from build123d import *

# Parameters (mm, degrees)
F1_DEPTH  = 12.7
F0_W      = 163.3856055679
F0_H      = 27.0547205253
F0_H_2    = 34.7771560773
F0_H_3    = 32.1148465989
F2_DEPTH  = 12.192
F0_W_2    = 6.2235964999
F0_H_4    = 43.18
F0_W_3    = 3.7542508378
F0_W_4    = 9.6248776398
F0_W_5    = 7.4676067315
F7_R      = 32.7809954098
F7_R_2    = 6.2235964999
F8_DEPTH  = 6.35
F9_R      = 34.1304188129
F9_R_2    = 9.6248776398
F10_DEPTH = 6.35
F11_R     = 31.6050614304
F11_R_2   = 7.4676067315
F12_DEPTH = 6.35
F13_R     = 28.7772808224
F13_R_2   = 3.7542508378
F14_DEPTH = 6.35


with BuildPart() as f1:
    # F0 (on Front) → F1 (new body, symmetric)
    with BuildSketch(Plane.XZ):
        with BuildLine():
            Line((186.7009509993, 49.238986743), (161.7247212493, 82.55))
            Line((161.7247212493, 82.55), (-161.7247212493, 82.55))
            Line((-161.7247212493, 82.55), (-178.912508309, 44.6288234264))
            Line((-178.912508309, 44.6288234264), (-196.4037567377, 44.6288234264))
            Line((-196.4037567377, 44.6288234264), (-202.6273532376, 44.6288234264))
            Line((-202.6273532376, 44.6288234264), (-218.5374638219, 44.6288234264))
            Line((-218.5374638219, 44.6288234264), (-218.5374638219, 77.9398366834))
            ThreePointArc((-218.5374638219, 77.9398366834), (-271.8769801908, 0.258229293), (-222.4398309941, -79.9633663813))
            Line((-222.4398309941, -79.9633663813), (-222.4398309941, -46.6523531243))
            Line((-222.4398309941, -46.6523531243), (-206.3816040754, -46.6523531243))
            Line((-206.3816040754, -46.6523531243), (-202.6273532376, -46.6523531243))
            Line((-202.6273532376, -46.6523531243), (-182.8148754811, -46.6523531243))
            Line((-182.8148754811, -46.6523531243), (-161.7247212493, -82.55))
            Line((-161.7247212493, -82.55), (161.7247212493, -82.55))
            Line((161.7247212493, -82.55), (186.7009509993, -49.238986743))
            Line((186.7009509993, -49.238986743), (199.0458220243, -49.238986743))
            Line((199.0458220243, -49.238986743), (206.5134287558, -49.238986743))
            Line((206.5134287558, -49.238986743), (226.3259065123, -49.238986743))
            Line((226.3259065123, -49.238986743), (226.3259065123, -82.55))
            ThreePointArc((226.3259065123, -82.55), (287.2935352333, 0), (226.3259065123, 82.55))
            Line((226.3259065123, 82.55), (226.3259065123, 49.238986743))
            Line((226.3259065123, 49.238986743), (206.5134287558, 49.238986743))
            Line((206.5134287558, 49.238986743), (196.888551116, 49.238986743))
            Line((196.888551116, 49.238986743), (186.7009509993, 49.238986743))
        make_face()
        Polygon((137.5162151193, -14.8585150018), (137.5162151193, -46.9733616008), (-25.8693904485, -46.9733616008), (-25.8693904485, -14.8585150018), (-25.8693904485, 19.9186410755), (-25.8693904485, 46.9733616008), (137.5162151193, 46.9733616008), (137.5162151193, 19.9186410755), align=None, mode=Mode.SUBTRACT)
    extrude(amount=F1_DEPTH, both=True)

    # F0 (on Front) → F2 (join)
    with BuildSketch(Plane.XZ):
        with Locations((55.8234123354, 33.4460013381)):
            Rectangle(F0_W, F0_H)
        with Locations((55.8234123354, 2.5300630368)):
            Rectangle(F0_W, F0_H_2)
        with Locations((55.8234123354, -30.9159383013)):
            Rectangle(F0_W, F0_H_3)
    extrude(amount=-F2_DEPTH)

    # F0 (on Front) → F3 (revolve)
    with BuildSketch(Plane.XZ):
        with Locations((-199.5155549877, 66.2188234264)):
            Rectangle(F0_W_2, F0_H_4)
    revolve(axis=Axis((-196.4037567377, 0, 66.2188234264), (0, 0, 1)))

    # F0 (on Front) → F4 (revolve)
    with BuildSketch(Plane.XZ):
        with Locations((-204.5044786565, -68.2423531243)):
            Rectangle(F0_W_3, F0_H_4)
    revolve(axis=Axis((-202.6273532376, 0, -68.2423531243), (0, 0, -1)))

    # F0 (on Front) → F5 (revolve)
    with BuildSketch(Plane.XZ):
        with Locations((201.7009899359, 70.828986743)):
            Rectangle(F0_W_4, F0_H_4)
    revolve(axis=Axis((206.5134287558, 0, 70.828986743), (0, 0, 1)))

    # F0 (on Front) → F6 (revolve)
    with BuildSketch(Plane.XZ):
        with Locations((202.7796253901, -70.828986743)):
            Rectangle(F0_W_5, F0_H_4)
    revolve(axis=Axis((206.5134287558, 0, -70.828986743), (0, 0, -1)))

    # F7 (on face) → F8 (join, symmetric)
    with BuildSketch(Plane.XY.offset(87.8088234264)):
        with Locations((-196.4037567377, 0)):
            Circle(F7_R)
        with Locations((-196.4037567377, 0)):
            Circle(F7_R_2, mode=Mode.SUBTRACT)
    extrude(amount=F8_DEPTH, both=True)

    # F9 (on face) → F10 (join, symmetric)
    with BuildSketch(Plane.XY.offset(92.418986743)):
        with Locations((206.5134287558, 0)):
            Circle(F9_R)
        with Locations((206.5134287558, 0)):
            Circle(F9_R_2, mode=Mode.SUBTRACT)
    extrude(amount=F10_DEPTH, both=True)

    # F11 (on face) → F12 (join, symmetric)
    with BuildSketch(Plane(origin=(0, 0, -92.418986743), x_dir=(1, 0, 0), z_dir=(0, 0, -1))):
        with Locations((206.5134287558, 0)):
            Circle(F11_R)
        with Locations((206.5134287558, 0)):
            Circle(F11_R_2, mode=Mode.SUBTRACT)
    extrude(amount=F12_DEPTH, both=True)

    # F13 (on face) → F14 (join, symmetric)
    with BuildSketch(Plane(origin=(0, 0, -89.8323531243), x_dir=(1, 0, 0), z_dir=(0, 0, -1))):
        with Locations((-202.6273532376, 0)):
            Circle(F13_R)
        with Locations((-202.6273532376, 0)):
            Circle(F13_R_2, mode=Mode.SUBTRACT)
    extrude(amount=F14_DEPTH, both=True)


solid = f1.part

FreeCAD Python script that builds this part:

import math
import FreeCAD as App
import Part
import Sketcher
Q = App.Units.Quantity

doc = App.newDocument("Part")
body = doc.addObject("PartDesign::Body", "Body")

# Sketch on XZ plane
sketch1 = body.newObject("Sketcher::SketchObject", "Sketch")
sketch1.AttachmentSupport = (doc.getObject("XZ_Plane"), [""])
sketch1.MapMode = "FlatFace"
sketch1.addGeometry(Part.LineSegment(App.Vector(187, 49, 0), App.Vector(162, 83, 0)), False)
sketch1.addGeometry(Part.LineSegment(App.Vector(162, 83, 0), App.Vector(-162, 83, 0)), False)
sketch1.addGeometry(Part.LineSegment(App.Vector(-162, 83, 0), App.Vector(-179, 45, 0)), False)
sketch1.addGeometry(Part.LineSegment(App.Vector(-179, 45, 0), App.Vector(-219, 45, 0)), False)
sketch1.addGeometry(Part.LineSegment(App.Vector(-219, 45, 0), App.Vector(-219, 78, 0)), False)
sketch1.addGeometry(Part.ArcOfCircle(Part.Circle(App.Vector(-186, -2, 0), App.Vector(0, 0, 1), 86), math.radians(112), math.radians(245)), False)
sketch1.addGeometry(Part.LineSegment(App.Vector(-222, -80, 0), App.Vector(-222, -47, 0)), False)
sketch1.addGeometry(Part.LineSegment(App.Vector(-222, -47, 0), App.Vector(-183, -47, 0)), False)
sketch1.addGeometry(Part.LineSegment(App.Vector(-183, -47, 0), App.Vector(-162, -83, 0)), False)
sketch1.addGeometry(Part.LineSegment(App.Vector(-162, -83, 0), App.Vector(162, -83, 0)), False)
sketch1.addGeometry(Part.LineSegment(App.Vector(162, -83, 0), App.Vector(187, -49, 0)), False)
sketch1.addGeometry(Part.LineSegment(App.Vector(187, -49, 0), App.Vector(226, -49, 0)), False)
sketch1.addGeometry(Part.LineSegment(App.Vector(226, -49, 0), App.Vector(226, -83, 0)), False)
sketch1.addGeometry(Part.ArcOfCircle(Part.Circle(App.Vector(201, 0, 0), App.Vector(0, 0, 1), 86), math.radians(-73), math.radians(73)), False)
sketch1.addGeometry(Part.LineSegment(App.Vector(226, 83, 0), App.Vector(226, 49, 0)), False)
sketch1.addGeometry(Part.LineSegment(App.Vector(226, 49, 0), App.Vector(187, 49, 0)), False)
sketch1.addGeometry(Part.LineSegment(App.Vector(138, 47, 0), App.Vector(138, -47, 0)), False)
sketch1.addGeometry(Part.LineSegment(App.Vector(138, -47, 0), App.Vector(-26, -47, 0)), False)
sketch1.addGeometry(Part.LineSegment(App.Vector(-26, -47, 0), App.Vector(-26, 47, 0)), False)
sketch1.addGeometry(Part.LineSegment(App.Vector(-26, 47, 0), App.Vector(138, 47, 0)), False)
sketch1.addConstraint(Sketcher.Constraint("Coincident", 0, 2, 1, 1))
sketch1.addConstraint(Sketcher.Constraint("Coincident", 1, 2, 2, 1))
sketch1.addConstraint(Sketcher.Constraint("Coincident", 2, 2, 3, 1))
sketch1.addConstraint(Sketcher.Constraint("Coincident", 3, 2, 4, 1))
sketch1.addConstraint(Sketcher.Constraint("Coincident", 4, 2, 5, 1))
sketch1.addConstraint(Sketcher.Constraint("Coincident", 5, 2, 6, 1))
sketch1.addConstraint(Sketcher.Constraint("Coincident", 6, 2, 7, 1))
sketch1.addConstraint(Sketcher.Constraint("Coincident", 7, 2, 8, 1))
sketch1.addConstraint(Sketcher.Constraint("Coincident", 8, 2, 9, 1))
sketch1.addConstraint(Sketcher.Constraint("Coincident", 9, 2, 10, 1))
sketch1.addConstraint(Sketcher.Constraint("Coincident", 10, 2, 11, 1))
sketch1.addConstraint(Sketcher.Constraint("Coincident", 11, 2, 12, 1))
sketch1.addConstraint(Sketcher.Constraint("Coincident", 12, 2, 13, 1))
sketch1.addConstraint(Sketcher.Constraint("Coincident", 13, 2, 14, 1))
sketch1.addConstraint(Sketcher.Constraint("Coincident", 14, 2, 15, 1))
sketch1.addConstraint(Sketcher.Constraint("Coincident", 15, 2, 0, 1))
sketch1.addConstraint(Sketcher.Constraint("Coincident", 16, 2, 17, 1))
sketch1.addConstraint(Sketcher.Constraint("Coincident", 17, 2, 18, 1))
sketch1.addConstraint(Sketcher.Constraint("Coincident", 18, 2, 19, 1))
sketch1.addConstraint(Sketcher.Constraint("Coincident", 19, 2, 16, 1))
sketch1.addConstraint(Sketcher.Constraint("Horizontal", 1))
sketch1.addConstraint(Sketcher.Constraint("Horizontal", 3))
sketch1.addConstraint(Sketcher.Constraint("Vertical", 4))
sketch1.addConstraint(Sketcher.Constraint("Vertical", 6))
sketch1.addConstraint(Sketcher.Constraint("Horizontal", 7))
sketch1.addConstraint(Sketcher.Constraint("Horizontal", 9))
sketch1.addConstraint(Sketcher.Constraint("Horizontal", 11))
sketch1.addConstraint(Sketcher.Constraint("Vertical", 12))
sketch1.addConstraint(Sketcher.Constraint("Vertical", 14))
sketch1.addConstraint(Sketcher.Constraint("Horizontal", 15))
sketch1.addConstraint(Sketcher.Constraint("Vertical", 16))
sketch1.addConstraint(Sketcher.Constraint("Horizontal", 17))
sketch1.addConstraint(Sketcher.Constraint("Vertical", 18))
sketch1.addConstraint(Sketcher.Constraint("Horizontal", 19))
sketch1.addConstraint(Sketcher.Constraint("Equal", 5, 13))
sketch1.addConstraint(Sketcher.Constraint("Symmetric", 0, 2, 8, 2, -1, 1))
sketch1.addConstraint(Sketcher.Constraint("Symmetric", 12, 2, 13, 2, -1))
sketch1.addConstraint(Sketcher.Constraint("Symmetric", 10, 2, 15, 2, -1))
sketch1.addConstraint(Sketcher.Constraint("Horizontal", 9, 2, 12, 2))
sketch1.addConstraint(Sketcher.Constraint("Vertical", 1, 2, 8, 2))
sketch1.addConstraint(Sketcher.Constraint("Vertical", 0, 2, 9, 2))
sketch1.addConstraint(Sketcher.Constraint("Equal", 3, 7))
sketch1.addConstraint(Sketcher.Constraint("Equal", 7, 11))
sketch1.addConstraint(Sketcher.Constraint("Equal", 4, 6))
sketch1.addConstraint(Sketcher.Constraint("Equal", 6, 12))
sketch1.addConstraint(Sketcher.Constraint("Equal", 0, 2))
sketch1.addConstraint(Sketcher.Constraint("Equal", 2, 8))
sketch1.addConstraint(Sketcher.Constraint("DistanceY", 9, 2, 0, 2, Q("6.5 in")))
sketch1.addConstraint(Sketcher.Constraint("Radius", 5, 86.37005))
sketch1.addConstraint(Sketcher.Constraint("DistanceY", 5, 3, 18, 2, 48.849001))
sketch1.addConstraint(Sketcher.Constraint("Distance", 0, 41.634549))
sketch1.addConstraint(Sketcher.Constraint("DistanceX", 1, 2, 1, 1, 323.449442))
sketch1.addConstraint(Sketcher.Constraint("DistanceX", 3, 2, 3, 1, 39.624956))
sketch1.addConstraint(Sketcher.Constraint("DistanceX", 17, 2, 17, 1, 163.385606))
sketch1.addConstraint(Sketcher.Constraint("DistanceY", 4, 1, 4, 2, 33.311013))
sketch1.addConstraint(Sketcher.Constraint("DistanceY", 16, 2, 16, 1, 93.946723))
sketch1.addConstraint(Sketcher.Constraint("DistanceY", 5, 3, -1, 1, 1.87564))
sketch1.addConstraint(Sketcher.Constraint("DistanceX", 2, 2, -1, 1, 178.912508))
sketch1.addConstraint(Sketcher.Constraint("DistanceX", 17, 2, -1, 1, 25.86939))
pad1 = body.newObject("PartDesign::Pad", "Pad")
pad1.Profile = sketch1
pad1.Length = Q("1 in")
pad1.Midplane = True

# Sketch on XZ plane
sketch2 = body.newObject("Sketcher::SketchObject", "Sketch001")
sketch2.AttachmentSupport = (doc.getObject("XZ_Plane"), [""])
sketch2.MapMode = "FlatFace"
sketch2.addGeometry(Part.LineSegment(App.Vector(-26, 47, 0), App.Vector(-26, -47, 0)), False)
sketch2.addGeometry(Part.LineSegment(App.Vector(-26, -47, 0), App.Vector(138, -47, 0)), False)
sketch2.addGeometry(Part.LineSegment(App.Vector(138, -47, 0), App.Vector(138, 47, 0)), False)
sketch2.addGeometry(Part.LineSegment(App.Vector(138, 47, 0), App.Vector(-26, 47, 0)), False)
sketch2.addConstraint(Sketcher.Constraint("Coincident", 0, 2, 1, 1))
sketch2.addConstraint(Sketcher.Constraint("Coincident", 1, 2, 2, 1))
sketch2.addConstraint(Sketcher.Constraint("Coincident", 2, 2, 3, 1))
sketch2.addConstraint(Sketcher.Constraint("Coincident", 3, 2, 0, 1))
sketch2.addConstraint(Sketcher.Constraint("Vertical", 0))
sketch2.addConstraint(Sketcher.Constraint("Horizontal", 1))
sketch2.addConstraint(Sketcher.Constraint("Vertical", 2))
sketch2.addConstraint(Sketcher.Constraint("Horizontal", 3))
sketch2.addConstraint(Sketcher.Constraint("DistanceX", 1, 1, 1, 2, 163.385606))
sketch2.addConstraint(Sketcher.Constraint("DistanceY", 0, 2, 0, 1, 93.946723))
sketch2.addConstraint(Sketcher.Constraint("DistanceX", 0, 2, -1, 1, 25.86939))
sketch2.addConstraint(Sketcher.Constraint("DistanceY", 0, 2, -1, 1, 46.973362))
pad2 = body.newObject("PartDesign::Pad", "Pad001")
pad2.Profile = sketch2
pad2.Length = Q("0.48 in")
pad2.Reversed = True

# Sketch on XZ plane
sketch3 = body.newObject("Sketcher::SketchObject", "Sketch002")
sketch3.AttachmentSupport = (doc.getObject("XZ_Plane"), [""])
sketch3.MapMode = "FlatFace"
sketch3.addGeometry(Part.LineSegment(App.Vector(-203, 88, 0), App.Vector(-203, 45, 0)), False)
sketch3.addGeometry(Part.LineSegment(App.Vector(-203, 45, 0), App.Vector(-196, 45, 0)), False)
sketch3.addGeometry(Part.LineSegment(App.Vector(-196, 45, 0), App.Vector(-196, 88, 0)), False)
sketch3.addGeometry(Part.LineSegment(App.Vector(-196, 88, 0), App.Vector(-203, 88, 0)), False)
sketch3.addGeometry(Part.LineSegment(App.Vector(-196, 45, 0), App.Vector(-196, 88, 0)), True)  # axis
sketch3.addConstraint(Sketcher.Constraint("Coincident", 0, 2, 1, 1))
sketch3.addConstraint(Sketcher.Constraint("Coincident", 1, 2, 2, 1))
sketch3.addConstraint(Sketcher.Constraint("Coincident", 2, 2, 3, 1))
sketch3.addConstraint(Sketcher.Constraint("Coincident", 3, 2, 0, 1))
sketch3.addConstraint(Sketcher.Constraint("Vertical", 0))
sketch3.addConstraint(Sketcher.Constraint("Horizontal", 1))
sketch3.addConstraint(Sketcher.Constraint("Vertical", 2))
sketch3.addConstraint(Sketcher.Constraint("Horizontal", 3))
sketch3.addConstraint(Sketcher.Constraint("Vertical", 4))
sketch3.addConstraint(Sketcher.Constraint("Coincident", 4, 1, 1, 2))
sketch3.addConstraint(Sketcher.Constraint("Horizontal", 3, 2, 4, 2))
sketch3.addConstraint(Sketcher.Constraint("DistanceY", 0, 2, 0, 1, Q("1.7 in")))
sketch3.addConstraint(Sketcher.Constraint("DistanceX", 1, 1, 1, 2, 6.223597))
sketch3.addConstraint(Sketcher.Constraint("DistanceX", 0, 2, -1, 1, 202.627353))
sketch3.addConstraint(Sketcher.Constraint("DistanceY", -1, 1, 0, 2, 44.628823))
revolution = body.newObject("PartDesign::Revolution", "Revolution")
revolution.Profile = sketch3
revolution.ReferenceAxis = (sketch3, ["Axis0"])
revolution.Angle = 360

# Sketch on XZ plane
sketch4 = body.newObject("Sketcher::SketchObject", "Sketch003")
sketch4.AttachmentSupport = (doc.getObject("XZ_Plane"), [""])
sketch4.MapMode = "FlatFace"
sketch4.addGeometry(Part.LineSegment(App.Vector(-206.4, -46.7, 0), App.Vector(-206.4, -89.8, 0)), False)
sketch4.addGeometry(Part.LineSegment(App.Vector(-206.4, -89.8, 0), App.Vector(-202.6, -89.8, 0)), False)
sketch4.addGeometry(Part.LineSegment(App.Vector(-202.6, -89.8, 0), App.Vector(-202.6, -46.7, 0)), False)
sketch4.addGeometry(Part.LineSegment(App.Vector(-202.6, -46.7, 0), App.Vector(-206.4, -46.7, 0)), False)
sketch4.addGeometry(Part.LineSegment(App.Vector(-202.6, -46.7, 0), App.Vector(-202.6, -89.8, 0)), True)  # axis
sketch4.addConstraint(Sketcher.Constraint("Coincident", 0, 2, 1, 1))
sketch4.addConstraint(Sketcher.Constraint("Coincident", 1, 2, 2, 1))
sketch4.addConstraint(Sketcher.Constraint("Coincident", 2, 2, 3, 1))
sketch4.addConstraint(Sketcher.Constraint("Coincident", 3, 2, 0, 1))
sketch4.addConstraint(Sketcher.Constraint("Vertical", 0))
sketch4.addConstraint(Sketcher.Constraint("Horizontal", 1))
sketch4.addConstraint(Sketcher.Constraint("Vertical", 2))
sketch4.addConstraint(Sketcher.Constraint("Horizontal", 3))
sketch4.addConstraint(Sketcher.Constraint("Vertical", 4))
sketch4.addConstraint(Sketcher.Constraint("Coincident", 4, 1, 2, 2))
sketch4.addConstraint(Sketcher.Constraint("Horizontal", 0, 2, 4, 2))
sketch4.addConstraint(Sketcher.Constraint("DistanceY", 0, 2, 0, 1, Q("1.7 in")))
sketch4.addConstraint(Sketcher.Constraint("DistanceX", 1, 1, 1, 2, 3.754251))
sketch4.addConstraint(Sketcher.Constraint("DistanceX", 0, 2, -1, 1, 206.381604))
sketch4.addConstraint(Sketcher.Constraint("DistanceY", 0, 2, -1, 1, 89.832353))
revolution2 = body.newObject("PartDesign::Revolution", "Revolution001")
revolution2.Profile = sketch4
revolution2.ReferenceAxis = (sketch4, ["Axis0"])
revolution2.Angle = 360

# Sketch on XZ plane
sketch5 = body.newObject("Sketcher::SketchObject", "Sketch004")
sketch5.AttachmentSupport = (doc.getObject("XZ_Plane"), [""])
sketch5.MapMode = "FlatFace"
sketch5.addGeometry(Part.LineSegment(App.Vector(197, 92, 0), App.Vector(197, 49, 0)), False)
sketch5.addGeometry(Part.LineSegment(App.Vector(197, 49, 0), App.Vector(207, 49, 0)), False)
sketch5.addGeometry(Part.LineSegment(App.Vector(207, 49, 0), App.Vector(207, 92, 0)), False)
sketch5.addGeometry(Part.LineSegment(App.Vector(207, 92, 0), App.Vector(197, 92, 0)), False)
sketch5.addGeometry(Part.LineSegment(App.Vector(207, 49, 0), App.Vector(207, 92, 0)), True)  # axis
sketch5.addConstraint(Sketcher.Constraint("Coincident", 0, 2, 1, 1))
sketch5.addConstraint(Sketcher.Constraint("Coincident", 1, 2, 2, 1))
sketch5.addConstraint(Sketcher.Constraint("Coincident", 2, 2, 3, 1))
sketch5.addConstraint(Sketcher.Constraint("Coincident", 3, 2, 0, 1))
sketch5.addConstraint(Sketcher.Constraint("Vertical", 0))
sketch5.addConstraint(Sketcher.Constraint("Horizontal", 1))
sketch5.addConstraint(Sketcher.Constraint("Vertical", 2))
sketch5.addConstraint(Sketcher.Constraint("Horizontal", 3))
sketch5.addConstraint(Sketcher.Constraint("Vertical", 4))
sketch5.addConstraint(Sketcher.Constraint("Coincident", 4, 1, 1, 2))
sketch5.addConstraint(Sketcher.Constraint("Horizontal", 3, 2, 4, 2))
sketch5.addConstraint(Sketcher.Constraint("DistanceY", 0, 2, 0, 1, Q("1.7 in")))
sketch5.addConstraint(Sketcher.Constraint("DistanceX", 1, 1, 1, 2, 9.624878))
sketch5.addConstraint(Sketcher.Constraint("DistanceX", -1, 1, 0, 2, 196.888551))
sketch5.addConstraint(Sketcher.Constraint("DistanceY", -1, 1, 0, 2, 49.238987))
revolution3 = body.newObject("PartDesign::Revolution", "Revolution002")
revolution3.Profile = sketch5
revolution3.ReferenceAxis = (sketch5, ["Axis0"])
revolution3.Angle = 360

# Sketch on XZ plane
sketch6 = body.newObject("Sketcher::SketchObject", "Sketch005")
sketch6.AttachmentSupport = (doc.getObject("XZ_Plane"), [""])
sketch6.MapMode = "FlatFace"
sketch6.addGeometry(Part.LineSegment(App.Vector(199, -49, 0), App.Vector(199, -92, 0)), False)
sketch6.addGeometry(Part.LineSegment(App.Vector(199, -92, 0), App.Vector(207, -92, 0)), False)
sketch6.addGeometry(Part.LineSegment(App.Vector(207, -92, 0), App.Vector(207, -49, 0)), False)
sketch6.addGeometry(Part.LineSegment(App.Vector(207, -49, 0), App.Vector(199, -49, 0)), False)
sketch6.addGeometry(Part.LineSegment(App.Vector(207, -49, 0), App.Vector(207, -92, 0)), True)  # axis
sketch6.addConstraint(Sketcher.Constraint("Coincident", 0, 2, 1, 1))
sketch6.addConstraint(Sketcher.Constraint("Coincident", 1, 2, 2, 1))
sketch6.addConstraint(Sketcher.Constraint("Coincident", 2, 2, 3, 1))
sketch6.addConstraint(Sketcher.Constraint("Coincident", 3, 2, 0, 1))
sketch6.addConstraint(Sketcher.Constraint("Vertical", 0))
sketch6.addConstraint(Sketcher.Constraint("Horizontal", 1))
sketch6.addConstraint(Sketcher.Constraint("Vertical", 2))
sketch6.addConstraint(Sketcher.Constraint("Horizontal", 3))
sketch6.addConstraint(Sketcher.Constraint("Vertical", 4))
sketch6.addConstraint(Sketcher.Constraint("Coincident", 4, 1, 2, 2))
sketch6.addConstraint(Sketcher.Constraint("Horizontal", 0, 2, 4, 2))
sketch6.addConstraint(Sketcher.Constraint("DistanceY", 0, 2, 0, 1, Q("1.7 in")))
sketch6.addConstraint(Sketcher.Constraint("DistanceX", 1, 1, 1, 2, 7.467607))
sketch6.addConstraint(Sketcher.Constraint("DistanceX", -1, 1, 1, 2, 206.513429))
sketch6.addConstraint(Sketcher.Constraint("DistanceY", 0, 2, -1, 1, 92.418987))
revolution4 = body.newObject("PartDesign::Revolution", "Revolution003")
revolution4.Profile = sketch6
revolution4.ReferenceAxis = (sketch6, ["Axis0"])
revolution4.Angle = 360

# Sketch on XY plane
sketch7 = body.newObject("Sketcher::SketchObject", "Sketch006")
sketch7.AttachmentSupport = (doc.getObject("XY_Plane"), [""])
sketch7.MapMode = "FlatFace"
sketch7.AttachmentOffset = App.Placement(App.Vector(0, 0, 87.808823), App.Rotation())
sketch7.addGeometry(Part.Circle(App.Vector(-196, 0, 0), App.Vector(0, 0, 1), 33), False)
sketch7.addGeometry(Part.Circle(App.Vector(-196, 0, 0), App.Vector(0, 0, 1), 6), False)
sketch7.addConstraint(Sketcher.Constraint("Coincident", 1, 3, 0, 3))
sketch7.addConstraint(Sketcher.Constraint("PointOnObject", 0, 3, -1))
sketch7.addConstraint(Sketcher.Constraint("Diameter", 0, 65.561991))
sketch7.addConstraint(Sketcher.Constraint("Diameter", 1, 12.447193))
sketch7.addConstraint(Sketcher.Constraint("DistanceX", 0, 3, -1, 1, 196.403757))
pad3 = body.newObject("PartDesign::Pad", "Pad002")
pad3.Profile = sketch7
pad3.Length = Q("0.5 in")
pad3.Midplane = True

# Sketch on XY plane
sketch8 = body.newObject("Sketcher::SketchObject", "Sketch007")
sketch8.AttachmentSupport = (doc.getObject("XY_Plane"), [""])
sketch8.MapMode = "FlatFace"
sketch8.AttachmentOffset = App.Placement(App.Vector(0, 0, 92.418987), App.Rotation())
sketch8.addGeometry(Part.Circle(App.Vector(207, 0, 0), App.Vector(0, 0, 1), 34), False)
sketch8.addGeometry(Part.Circle(App.Vector(207, 0, 0), App.Vector(0, 0, 1), 10), False)
sketch8.addConstraint(Sketcher.Constraint("Coincident", 1, 3, 0, 3))
sketch8.addConstraint(Sketcher.Constraint("PointOnObject", 0, 3, -1))
sketch8.addConstraint(Sketcher.Constraint("Diameter", 0, 68.260838))
sketch8.addConstraint(Sketcher.Constraint("Diameter", 1, 19.249755))
sketch8.addConstraint(Sketcher.Constraint("DistanceX", -1, 1, 0, 3, 206.513429))
pad4 = body.newObject("PartDesign::Pad", "Pad003")
pad4.Profile = sketch8
pad4.Length = Q("0.5 in")
pad4.Midplane = True

# Sketch on XY plane
sketch9 = body.newObject("Sketcher::SketchObject", "Sketch008")
sketch9.AttachmentSupport = (doc.getObject("XY_Plane"), [""])
sketch9.MapMode = "FlatFace"
sketch9.AttachmentOffset = App.Placement(App.Vector(0, 0, -92.418987), App.Rotation())
sketch9.addGeometry(Part.Circle(App.Vector(207, 0, 0), App.Vector(0, 0, 1), 32), False)
sketch9.addGeometry(Part.Circle(App.Vector(207, 0, 0), App.Vector(0, 0, 1), 7), False)
sketch9.addConstraint(Sketcher.Constraint("Coincident", 1, 3, 0, 3))
sketch9.addConstraint(Sketcher.Constraint("PointOnObject", 0, 3, -1))
sketch9.addConstraint(Sketcher.Constraint("Diameter", 0, 63.210123))
sketch9.addConstraint(Sketcher.Constraint("Diameter", 1, 14.935213))
sketch9.addConstraint(Sketcher.Constraint("DistanceX", -1, 1, 0, 3, 206.513429))
pad5 = body.newObject("PartDesign::Pad", "Pad004")
pad5.Profile = sketch9
pad5.Length = Q("0.5 in")
pad5.Midplane = True

# Sketch on XY plane
sketch10 = body.newObject("Sketcher::SketchObject", "Sketch009")
sketch10.AttachmentSupport = (doc.getObject("XY_Plane"), [""])
sketch10.MapMode = "FlatFace"
sketch10.AttachmentOffset = App.Placement(App.Vector(0, 0, -89.832353), App.Rotation())
sketch10.addGeometry(Part.Circle(App.Vector(-202.6, 0, 0), App.Vector(0, 0, 1), 28.8), False)
sketch10.addGeometry(Part.Circle(App.Vector(-202.6, 0, 0), App.Vector(0, 0, 1), 3.8), False)
sketch10.addConstraint(Sketcher.Constraint("Coincident", 1, 3, 0, 3))
sketch10.addConstraint(Sketcher.Constraint("PointOnObject", 0, 3, -1))
sketch10.addConstraint(Sketcher.Constraint("Diameter", 1, 7.508502))
sketch10.addConstraint(Sketcher.Constraint("Diameter", 0, 57.554562))
sketch10.addConstraint(Sketcher.Constraint("DistanceX", 0, 3, -1, 1, 202.627353))
pad6 = body.newObject("PartDesign::Pad", "Pad005")
pad6.Profile = sketch10
pad6.Length = Q("0.5 in")
pad6.Midplane = True

doc.recompute()
